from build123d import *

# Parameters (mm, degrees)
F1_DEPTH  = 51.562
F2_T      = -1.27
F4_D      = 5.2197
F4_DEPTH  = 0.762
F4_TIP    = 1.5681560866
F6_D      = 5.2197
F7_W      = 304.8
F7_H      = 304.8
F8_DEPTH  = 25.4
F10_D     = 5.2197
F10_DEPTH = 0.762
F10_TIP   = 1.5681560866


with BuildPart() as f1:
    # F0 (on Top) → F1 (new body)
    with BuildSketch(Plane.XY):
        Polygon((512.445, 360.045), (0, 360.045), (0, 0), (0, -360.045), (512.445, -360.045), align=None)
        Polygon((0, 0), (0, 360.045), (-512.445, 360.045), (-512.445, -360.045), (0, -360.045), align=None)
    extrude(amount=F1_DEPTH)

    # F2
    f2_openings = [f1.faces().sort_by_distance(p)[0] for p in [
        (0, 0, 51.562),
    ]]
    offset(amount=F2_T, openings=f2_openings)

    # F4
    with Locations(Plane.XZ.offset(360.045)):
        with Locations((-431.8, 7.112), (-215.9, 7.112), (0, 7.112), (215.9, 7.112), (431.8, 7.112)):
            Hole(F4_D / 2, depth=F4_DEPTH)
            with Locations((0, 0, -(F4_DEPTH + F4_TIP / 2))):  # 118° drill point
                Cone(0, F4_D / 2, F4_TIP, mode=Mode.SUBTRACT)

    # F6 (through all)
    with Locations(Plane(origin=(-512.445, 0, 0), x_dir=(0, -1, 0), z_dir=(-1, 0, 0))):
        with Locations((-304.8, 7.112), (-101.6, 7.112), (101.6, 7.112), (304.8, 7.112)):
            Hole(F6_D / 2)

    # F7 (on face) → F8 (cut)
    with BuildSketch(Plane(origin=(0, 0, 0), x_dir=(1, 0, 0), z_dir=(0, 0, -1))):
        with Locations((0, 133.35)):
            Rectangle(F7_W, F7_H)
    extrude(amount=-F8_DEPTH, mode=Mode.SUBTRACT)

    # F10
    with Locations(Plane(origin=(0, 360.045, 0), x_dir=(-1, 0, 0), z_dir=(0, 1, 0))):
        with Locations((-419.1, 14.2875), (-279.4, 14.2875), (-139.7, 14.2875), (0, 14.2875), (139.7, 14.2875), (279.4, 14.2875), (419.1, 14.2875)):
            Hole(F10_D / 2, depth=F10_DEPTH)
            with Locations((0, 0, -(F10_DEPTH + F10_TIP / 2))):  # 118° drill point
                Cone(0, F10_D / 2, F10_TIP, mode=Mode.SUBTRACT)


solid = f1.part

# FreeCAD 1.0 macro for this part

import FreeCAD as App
import Part
import Sketcher

V = App.Vector
Q = App.Units.Quantity


def faces_at(feature, points):
    """Names of the faces that lie closest to the given points."""
    faces = feature.Shape.Faces
    near = lambda p: min(range(len(faces)), key=lambda i: faces[i].distToShape(Part.Vertex(*p))[0])
    return sorted({f"Face{near(p) + 1}" for p in points})

doc = App.newDocument("Part")
params = doc.addObject("Spreadsheet::Sheet", "Params")
for row, (alias, value) in enumerate([
    ("sketch1_width", "40.35 in"),
    ("sketch1_height", "28.35 in"),
    ("pad1_length", "2.03 in"),
    ("thickness_wall", "0.05 in"),
    ("hole_diameter", "0.2055 in"),
    ("hole_depth", "0.03 in"),
    ("hole2_diameter", "0.2055 in"),
    ("sketch4_width", "12 in"),
    ("pocket1_length", "1 in"),
    ("hole3_diameter", "0.2055 in"),
    ("hole3_depth", "0.03 in"),
], start=1):
    params.set(f"A{row}", alias)
    params.set(f"B{row}", "=" + value)
    params.setAlias(f"B{row}", alias)

body = doc.addObject("PartDesign::Body", "Body")

sketch1 = body.newObject("Sketcher::SketchObject", "Sketch")
sketch1.AttachmentSupport = (doc.getObject("XY_Plane"), [""])
sketch1.MapMode = "FlatFace"
sketch1.addGeometry(Part.LineSegment(V(512, 360, 0), V(-512, 360, 0)), False)
sketch1.addGeometry(Part.LineSegment(V(-512, 360, 0), V(-512, -360, 0)), False)
sketch1.addGeometry(Part.LineSegment(V(-512, -360, 0), V(512, -360, 0)), False)
sketch1.addGeometry(Part.LineSegment(V(512, -360, 0), V(512, 360, 0)), False)
sketch1.addConstraint(Sketcher.Constraint("Coincident", 0, 2, 1, 1))
sketch1.addConstraint(Sketcher.Constraint("Coincident", 1, 2, 2, 1))
sketch1.addConstraint(Sketcher.Constraint("Coincident", 2, 2, 3, 1))
sketch1.addConstraint(Sketcher.Constraint("Coincident", 3, 2, 0, 1))
sketch1.addConstraint(Sketcher.Constraint("Horizontal", 0))
sketch1.addConstraint(Sketcher.Constraint("Vertical", 1))
sketch1.addConstraint(Sketcher.Constraint("Horizontal", 2))
sketch1.addConstraint(Sketcher.Constraint("Vertical", 3))
sketch1.addConstraint(Sketcher.Constraint("Symmetric", 0, 2, 2, 2, -1, 1))
sketch1.addConstraint(Sketcher.Constraint("DistanceX", 0, 2, 0, 1, Q("40.35 in")))
sketch1.addConstraint(Sketcher.Constraint("DistanceY", 1, 2, 1, 1, Q("28.35 in")))
sketch1.setExpression("Constraints[9]", "Params.sketch1_width")
sketch1.setExpression("Constraints[10]", "Params.sketch1_height")
pad1 = body.newObject("PartDesign::Pad", "Pad")
pad1.Profile = sketch1
pad1.setExpression("Length", "Params.pad1_length")
doc.recompute()

thickness = body.newObject("PartDesign::Thickness", "Thickness")
thickness.Base = (pad1, faces_at(pad1, [(0, 0, 51.562)]))
thickness.setExpression("Value", "Params.thickness_wall")
thickness.Reversed = True
thickness.Join = "Arc"

sketch2 = body.newObject("Sketcher::SketchObject", "Sketch001")
sketch2.AttachmentSupport = (doc.getObject("XZ_Plane"), [""])
sketch2.MapMode = "FlatFace"
sketch2.AttachmentOffset = App.Placement(V(0, 0, 14.175 * 25.4), App.Rotation())
sketch2.addGeometry(Part.Circle(V(-431.8, 7.1, 0), V(0, 0, 1), 2.6), False)
sketch2.addGeometry(Part.Circle(V(-215.9, 7.1, 0), V(0, 0, 1), 2.6), False)
sketch2.addGeometry(Part.Circle(V(0, 7.1, 0), V(0, 0, 1), 2.6), False)
sketch2.addGeometry(Part.Circle(V(215.9, 7.1, 0), V(0, 0, 1), 2.6), False)
sketch2.addGeometry(Part.Circle(V(431.8, 7.1, 0), V(0, 0, 1), 2.6), False)
sketch2.addConstraint(Sketcher.Constraint("Equal", 0, 1))
sketch2.addConstraint(Sketcher.Constraint("Equal", 1, 2))
sketch2.addConstraint(Sketcher.Constraint("Equal", 2, 3))
sketch2.addConstraint(Sketcher.Constraint("Equal", 3, 4))
sketch2.addConstraint(Sketcher.Constraint("Symmetric", 1, 3, 3, 3, -2))
sketch2.addConstraint(Sketcher.Constraint("Symmetric", 0, 3, 4, 3, -2))
sketch2.addConstraint(Sketcher.Constraint("PointOnObject", 2, 3, -2))
sketch2.addConstraint(Sketcher.Constraint("Horizontal", 0, 3, 1, 3))
sketch2.addConstraint(Sketcher.Constraint("Horizontal", 1, 3, 2, 3))
sketch2.addConstraint(Sketcher.Constraint("DistanceX", 0, 3, -1, 1, Q("17 in")))
sketch2.addConstraint(Sketcher.Constraint("DistanceX", 1, 3, 3, 3, Q("17 in")))
sketch2.addConstraint(Sketcher.Constraint("Diameter", 0, Q("0.2055 in")))
sketch2.addConstraint(Sketcher.Constraint("DistanceY", -1, 1, 0, 3, Q("0.28 in")))
doc.recompute()
hole = body.newObject("PartDesign::Hole", "Hole")
hole.Profile = sketch2
hole.ThreadType = "None"
hole.setExpression("Diameter", "Params.hole_diameter")
hole.DepthType = "Dimension"
hole.setExpression("Depth", "Params.hole_depth")
hole.DrillPoint = "Angled"
hole.DrillPointAngle = 118

sketch3 = body.newObject("Sketcher::SketchObject", "Sketch002")
sketch3.AttachmentSupport = (doc.getObject("YZ_Plane"), [""])
sketch3.MapMode = "FlatFace"
sketch3.AttachmentOffset = App.Placement(V(0, 0, -20.175 * 25.4), App.Rotation())
sketch3.addGeometry(Part.Circle(V(304.8, 7.1, 0), V(0, 0, 1), 2.6), False)
sketch3.addGeometry(Part.Circle(V(101.6, 7.1, 0), V(0, 0, 1), 2.6), False)
sketch3.addGeometry(Part.Circle(V(-101.6, 7.1, 0), V(0, 0, 1), 2.6), False)
sketch3.addGeometry(Part.Circle(V(-304.8, 7.1, 0), V(0, 0, 1), 2.6), False)
sketch3.addConstraint(Sketcher.Constraint("Equal", 0, 1))
sketch3.addConstraint(Sketcher.Constraint("Equal", 1, 2))
sketch3.addConstraint(Sketcher.Constraint("Equal", 2, 3))
sketch3.addConstraint(Sketcher.Constraint("Symmetric", 1, 3, 2, 3, -2))
sketch3.addConstraint(Sketcher.Constraint("Symmetric", 0, 3, 3, 3, -2))
sketch3.addConstraint(Sketcher.Constraint("Horizontal", 0, 3, 1, 3))
sketch3.addConstraint(Sketcher.Constraint("DistanceX", -1, 1, 0, 3, Q("12 in")))
sketch3.addConstraint(Sketcher.Constraint("DistanceX", -1, 1, 1, 3, Q("4 in")))
sketch3.addConstraint(Sketcher.Constraint("Diameter", 0, Q("0.2055 in")))
sketch3.addConstraint(Sketcher.Constraint("DistanceY", -1, 1, 0, 3, Q("0.28 in")))
doc.recompute()
hole2 = body.newObject("PartDesign::Hole", "Hole001")
hole2.Profile = sketch3
hole2.ThreadType = "None"
hole2.setExpression("Diameter", "Params.hole2_diameter")
hole2.DepthType = "ThroughAll"
hole2.Reversed = True

sketch4 = body.newObject("Sketcher::SketchObject", "Sketch003")
sketch4.AttachmentSupport = (doc.getObject("XY_Plane"), [""])
sketch4.MapMode = "FlatFace"
sketch4.addGeometry(Part.LineSegment(V(-152, -286, 0), V(-152, 19, 0)), False)
sketch4.addGeometry(Part.LineSegment(V(-152, 19, 0), V(152, 19, 0)), False)
sketch4.addGeometry(Part.LineSegment(V(152, 19, 0), V(152, -286, 0)), False)
sketch4.addGeometry(Part.LineSegment(V(152, -286, 0), V(-152, -286, 0)), False)
sketch4.addConstraint(Sketcher.Constraint("Coincident", 0, 2, 1, 1))
sketch4.addConstraint(Sketcher.Constraint("Coincident", 1, 2, 2, 1))
sketch4.addConstraint(Sketcher.Constraint("Coincident", 2, 2, 3, 1))
sketch4.addConstraint(Sketcher.Constraint("Coincident", 3, 2, 0, 1))
sketch4.addConstraint(Sketcher.Constraint("Vertical", 0))
sketch4.addConstraint(Sketcher.Constraint("Horizontal", 1))
sketch4.addConstraint(Sketcher.Constraint("Vertical", 2))
sketch4.addConstraint(Sketcher.Constraint("Horizontal", 3))
sketch4.addConstraint(Sketcher.Constraint("Equal", 3, 0))
sketch4.addConstraint(Sketcher.Constraint("DistanceX", 1, 1, 1, 2, Q("12 in")))
sketch4.addConstraint(Sketcher.Constraint("DistanceX", 0, 2, -1, 1, Q("6 in")))
sketch4.addConstraint(Sketcher.Constraint("DistanceY", -1, 1, 0, 2, Q("0.75 in")))
sketch4.setExpression("Constraints[9]", "Params.sketch4_width")
pocket1 = body.newObject("PartDesign::Pocket", "Pocket")
pocket1.Profile = sketch4
pocket1.setExpression("Length", "Params.pocket1_length")
pocket1.Reversed = True

sketch5 = body.newObject("Sketcher::SketchObject", "Sketch004")
sketch5.AttachmentSupport = (doc.getObject("XZ_Plane"), [""])
sketch5.MapMode = "FlatFace"
sketch5.AttachmentOffset = App.Placement(V(0, 0, -14.175 * 25.4), App.Rotation())
sketch5.addGeometry(Part.Circle(V(419.1, 14.3, 0), V(0, 0, 1), 2.6), False)
sketch5.addGeometry(Part.Circle(V(279.4, 14.3, 0), V(0, 0, 1), 2.6), False)
sketch5.addGeometry(Part.Circle(V(139.7, 14.3, 0), V(0, 0, 1), 2.6), False)
sketch5.addGeometry(Part.Circle(V(0, 14.3, 0), V(0, 0, 1), 2.6), False)
sketch5.addGeometry(Part.Circle(V(-139.7, 14.3, 0), V(0, 0, 1), 2.6), False)
sketch5.addGeometry(Part.Circle(V(-279.4, 14.3, 0), V(0, 0, 1), 2.6), False)
sketch5.addGeometry(Part.Circle(V(-419.1, 14.3, 0), V(0, 0, 1), 2.6), False)
sketch5.addConstraint(Sketcher.Constraint("Equal", 0, 1))
sketch5.addConstraint(Sketcher.Constraint("Equal", 1, 2))
sketch5.addConstraint(Sketcher.Constraint("Equal", 2, 3))
sketch5.addConstraint(Sketcher.Constraint("Equal", 3, 4))
sketch5.addConstraint(Sketcher.Constraint("Equal", 4, 5))
sketch5.addConstraint(Sketcher.Constraint("Equal", 5, 6))
sketch5.addConstraint(Sketcher.Constraint("Symmetric", 2, 3, 4, 3, -2))
sketch5.addConstraint(Sketcher.Constraint("Symmetric", 1, 3, 5, 3, -2))
sketch5.addConstraint(Sketcher.Constraint("Symmetric", 0, 3, 6, 3, -2))
sketch5.addConstraint(Sketcher.Constraint("PointOnObject", 3, 3, -2))
sketch5.addConstraint(Sketcher.Constraint("Horizontal", 0, 3, 1, 3))
sketch5.addConstraint(Sketcher.Constraint("Horizontal", 1, 3, 2, 3))
sketch5.addConstraint(Sketcher.Constraint("Horizontal", 2, 3, 3, 3))
sketch5.addConstraint(Sketcher.Constraint("DistanceX", -1, 1, 1, 3, Q("11 in")))
sketch5.addConstraint(Sketcher.Constraint("DistanceX", 2, 3, 0, 3, Q("11 in")))
sketch5.addConstraint(Sketcher.Constraint("DistanceX", 4, 3, 2, 3, Q("11 in")))
sketch5.addConstraint(Sketcher.Constraint("Diameter", 0, Q("0.2055 in")))
sketch5.addConstraint(Sketcher.Constraint("DistanceY", -1, 1, 0, 3, Q("0.5625 in")))
doc.recompute()
hole3 = body.newObject("PartDesign::Hole", "Hole002")
hole3.Profile = sketch5
hole3.ThreadType = "None"
hole3.setExpression("Diameter", "Params.hole3_diameter")
hole3.DepthType = "Dimension"
hole3.setExpression("Depth", "Params.hole3_depth")
hole3.DrillPoint = "Angled"
hole3.DrillPointAngle = 118
hole3.Reversed = True

doc.recompute()
